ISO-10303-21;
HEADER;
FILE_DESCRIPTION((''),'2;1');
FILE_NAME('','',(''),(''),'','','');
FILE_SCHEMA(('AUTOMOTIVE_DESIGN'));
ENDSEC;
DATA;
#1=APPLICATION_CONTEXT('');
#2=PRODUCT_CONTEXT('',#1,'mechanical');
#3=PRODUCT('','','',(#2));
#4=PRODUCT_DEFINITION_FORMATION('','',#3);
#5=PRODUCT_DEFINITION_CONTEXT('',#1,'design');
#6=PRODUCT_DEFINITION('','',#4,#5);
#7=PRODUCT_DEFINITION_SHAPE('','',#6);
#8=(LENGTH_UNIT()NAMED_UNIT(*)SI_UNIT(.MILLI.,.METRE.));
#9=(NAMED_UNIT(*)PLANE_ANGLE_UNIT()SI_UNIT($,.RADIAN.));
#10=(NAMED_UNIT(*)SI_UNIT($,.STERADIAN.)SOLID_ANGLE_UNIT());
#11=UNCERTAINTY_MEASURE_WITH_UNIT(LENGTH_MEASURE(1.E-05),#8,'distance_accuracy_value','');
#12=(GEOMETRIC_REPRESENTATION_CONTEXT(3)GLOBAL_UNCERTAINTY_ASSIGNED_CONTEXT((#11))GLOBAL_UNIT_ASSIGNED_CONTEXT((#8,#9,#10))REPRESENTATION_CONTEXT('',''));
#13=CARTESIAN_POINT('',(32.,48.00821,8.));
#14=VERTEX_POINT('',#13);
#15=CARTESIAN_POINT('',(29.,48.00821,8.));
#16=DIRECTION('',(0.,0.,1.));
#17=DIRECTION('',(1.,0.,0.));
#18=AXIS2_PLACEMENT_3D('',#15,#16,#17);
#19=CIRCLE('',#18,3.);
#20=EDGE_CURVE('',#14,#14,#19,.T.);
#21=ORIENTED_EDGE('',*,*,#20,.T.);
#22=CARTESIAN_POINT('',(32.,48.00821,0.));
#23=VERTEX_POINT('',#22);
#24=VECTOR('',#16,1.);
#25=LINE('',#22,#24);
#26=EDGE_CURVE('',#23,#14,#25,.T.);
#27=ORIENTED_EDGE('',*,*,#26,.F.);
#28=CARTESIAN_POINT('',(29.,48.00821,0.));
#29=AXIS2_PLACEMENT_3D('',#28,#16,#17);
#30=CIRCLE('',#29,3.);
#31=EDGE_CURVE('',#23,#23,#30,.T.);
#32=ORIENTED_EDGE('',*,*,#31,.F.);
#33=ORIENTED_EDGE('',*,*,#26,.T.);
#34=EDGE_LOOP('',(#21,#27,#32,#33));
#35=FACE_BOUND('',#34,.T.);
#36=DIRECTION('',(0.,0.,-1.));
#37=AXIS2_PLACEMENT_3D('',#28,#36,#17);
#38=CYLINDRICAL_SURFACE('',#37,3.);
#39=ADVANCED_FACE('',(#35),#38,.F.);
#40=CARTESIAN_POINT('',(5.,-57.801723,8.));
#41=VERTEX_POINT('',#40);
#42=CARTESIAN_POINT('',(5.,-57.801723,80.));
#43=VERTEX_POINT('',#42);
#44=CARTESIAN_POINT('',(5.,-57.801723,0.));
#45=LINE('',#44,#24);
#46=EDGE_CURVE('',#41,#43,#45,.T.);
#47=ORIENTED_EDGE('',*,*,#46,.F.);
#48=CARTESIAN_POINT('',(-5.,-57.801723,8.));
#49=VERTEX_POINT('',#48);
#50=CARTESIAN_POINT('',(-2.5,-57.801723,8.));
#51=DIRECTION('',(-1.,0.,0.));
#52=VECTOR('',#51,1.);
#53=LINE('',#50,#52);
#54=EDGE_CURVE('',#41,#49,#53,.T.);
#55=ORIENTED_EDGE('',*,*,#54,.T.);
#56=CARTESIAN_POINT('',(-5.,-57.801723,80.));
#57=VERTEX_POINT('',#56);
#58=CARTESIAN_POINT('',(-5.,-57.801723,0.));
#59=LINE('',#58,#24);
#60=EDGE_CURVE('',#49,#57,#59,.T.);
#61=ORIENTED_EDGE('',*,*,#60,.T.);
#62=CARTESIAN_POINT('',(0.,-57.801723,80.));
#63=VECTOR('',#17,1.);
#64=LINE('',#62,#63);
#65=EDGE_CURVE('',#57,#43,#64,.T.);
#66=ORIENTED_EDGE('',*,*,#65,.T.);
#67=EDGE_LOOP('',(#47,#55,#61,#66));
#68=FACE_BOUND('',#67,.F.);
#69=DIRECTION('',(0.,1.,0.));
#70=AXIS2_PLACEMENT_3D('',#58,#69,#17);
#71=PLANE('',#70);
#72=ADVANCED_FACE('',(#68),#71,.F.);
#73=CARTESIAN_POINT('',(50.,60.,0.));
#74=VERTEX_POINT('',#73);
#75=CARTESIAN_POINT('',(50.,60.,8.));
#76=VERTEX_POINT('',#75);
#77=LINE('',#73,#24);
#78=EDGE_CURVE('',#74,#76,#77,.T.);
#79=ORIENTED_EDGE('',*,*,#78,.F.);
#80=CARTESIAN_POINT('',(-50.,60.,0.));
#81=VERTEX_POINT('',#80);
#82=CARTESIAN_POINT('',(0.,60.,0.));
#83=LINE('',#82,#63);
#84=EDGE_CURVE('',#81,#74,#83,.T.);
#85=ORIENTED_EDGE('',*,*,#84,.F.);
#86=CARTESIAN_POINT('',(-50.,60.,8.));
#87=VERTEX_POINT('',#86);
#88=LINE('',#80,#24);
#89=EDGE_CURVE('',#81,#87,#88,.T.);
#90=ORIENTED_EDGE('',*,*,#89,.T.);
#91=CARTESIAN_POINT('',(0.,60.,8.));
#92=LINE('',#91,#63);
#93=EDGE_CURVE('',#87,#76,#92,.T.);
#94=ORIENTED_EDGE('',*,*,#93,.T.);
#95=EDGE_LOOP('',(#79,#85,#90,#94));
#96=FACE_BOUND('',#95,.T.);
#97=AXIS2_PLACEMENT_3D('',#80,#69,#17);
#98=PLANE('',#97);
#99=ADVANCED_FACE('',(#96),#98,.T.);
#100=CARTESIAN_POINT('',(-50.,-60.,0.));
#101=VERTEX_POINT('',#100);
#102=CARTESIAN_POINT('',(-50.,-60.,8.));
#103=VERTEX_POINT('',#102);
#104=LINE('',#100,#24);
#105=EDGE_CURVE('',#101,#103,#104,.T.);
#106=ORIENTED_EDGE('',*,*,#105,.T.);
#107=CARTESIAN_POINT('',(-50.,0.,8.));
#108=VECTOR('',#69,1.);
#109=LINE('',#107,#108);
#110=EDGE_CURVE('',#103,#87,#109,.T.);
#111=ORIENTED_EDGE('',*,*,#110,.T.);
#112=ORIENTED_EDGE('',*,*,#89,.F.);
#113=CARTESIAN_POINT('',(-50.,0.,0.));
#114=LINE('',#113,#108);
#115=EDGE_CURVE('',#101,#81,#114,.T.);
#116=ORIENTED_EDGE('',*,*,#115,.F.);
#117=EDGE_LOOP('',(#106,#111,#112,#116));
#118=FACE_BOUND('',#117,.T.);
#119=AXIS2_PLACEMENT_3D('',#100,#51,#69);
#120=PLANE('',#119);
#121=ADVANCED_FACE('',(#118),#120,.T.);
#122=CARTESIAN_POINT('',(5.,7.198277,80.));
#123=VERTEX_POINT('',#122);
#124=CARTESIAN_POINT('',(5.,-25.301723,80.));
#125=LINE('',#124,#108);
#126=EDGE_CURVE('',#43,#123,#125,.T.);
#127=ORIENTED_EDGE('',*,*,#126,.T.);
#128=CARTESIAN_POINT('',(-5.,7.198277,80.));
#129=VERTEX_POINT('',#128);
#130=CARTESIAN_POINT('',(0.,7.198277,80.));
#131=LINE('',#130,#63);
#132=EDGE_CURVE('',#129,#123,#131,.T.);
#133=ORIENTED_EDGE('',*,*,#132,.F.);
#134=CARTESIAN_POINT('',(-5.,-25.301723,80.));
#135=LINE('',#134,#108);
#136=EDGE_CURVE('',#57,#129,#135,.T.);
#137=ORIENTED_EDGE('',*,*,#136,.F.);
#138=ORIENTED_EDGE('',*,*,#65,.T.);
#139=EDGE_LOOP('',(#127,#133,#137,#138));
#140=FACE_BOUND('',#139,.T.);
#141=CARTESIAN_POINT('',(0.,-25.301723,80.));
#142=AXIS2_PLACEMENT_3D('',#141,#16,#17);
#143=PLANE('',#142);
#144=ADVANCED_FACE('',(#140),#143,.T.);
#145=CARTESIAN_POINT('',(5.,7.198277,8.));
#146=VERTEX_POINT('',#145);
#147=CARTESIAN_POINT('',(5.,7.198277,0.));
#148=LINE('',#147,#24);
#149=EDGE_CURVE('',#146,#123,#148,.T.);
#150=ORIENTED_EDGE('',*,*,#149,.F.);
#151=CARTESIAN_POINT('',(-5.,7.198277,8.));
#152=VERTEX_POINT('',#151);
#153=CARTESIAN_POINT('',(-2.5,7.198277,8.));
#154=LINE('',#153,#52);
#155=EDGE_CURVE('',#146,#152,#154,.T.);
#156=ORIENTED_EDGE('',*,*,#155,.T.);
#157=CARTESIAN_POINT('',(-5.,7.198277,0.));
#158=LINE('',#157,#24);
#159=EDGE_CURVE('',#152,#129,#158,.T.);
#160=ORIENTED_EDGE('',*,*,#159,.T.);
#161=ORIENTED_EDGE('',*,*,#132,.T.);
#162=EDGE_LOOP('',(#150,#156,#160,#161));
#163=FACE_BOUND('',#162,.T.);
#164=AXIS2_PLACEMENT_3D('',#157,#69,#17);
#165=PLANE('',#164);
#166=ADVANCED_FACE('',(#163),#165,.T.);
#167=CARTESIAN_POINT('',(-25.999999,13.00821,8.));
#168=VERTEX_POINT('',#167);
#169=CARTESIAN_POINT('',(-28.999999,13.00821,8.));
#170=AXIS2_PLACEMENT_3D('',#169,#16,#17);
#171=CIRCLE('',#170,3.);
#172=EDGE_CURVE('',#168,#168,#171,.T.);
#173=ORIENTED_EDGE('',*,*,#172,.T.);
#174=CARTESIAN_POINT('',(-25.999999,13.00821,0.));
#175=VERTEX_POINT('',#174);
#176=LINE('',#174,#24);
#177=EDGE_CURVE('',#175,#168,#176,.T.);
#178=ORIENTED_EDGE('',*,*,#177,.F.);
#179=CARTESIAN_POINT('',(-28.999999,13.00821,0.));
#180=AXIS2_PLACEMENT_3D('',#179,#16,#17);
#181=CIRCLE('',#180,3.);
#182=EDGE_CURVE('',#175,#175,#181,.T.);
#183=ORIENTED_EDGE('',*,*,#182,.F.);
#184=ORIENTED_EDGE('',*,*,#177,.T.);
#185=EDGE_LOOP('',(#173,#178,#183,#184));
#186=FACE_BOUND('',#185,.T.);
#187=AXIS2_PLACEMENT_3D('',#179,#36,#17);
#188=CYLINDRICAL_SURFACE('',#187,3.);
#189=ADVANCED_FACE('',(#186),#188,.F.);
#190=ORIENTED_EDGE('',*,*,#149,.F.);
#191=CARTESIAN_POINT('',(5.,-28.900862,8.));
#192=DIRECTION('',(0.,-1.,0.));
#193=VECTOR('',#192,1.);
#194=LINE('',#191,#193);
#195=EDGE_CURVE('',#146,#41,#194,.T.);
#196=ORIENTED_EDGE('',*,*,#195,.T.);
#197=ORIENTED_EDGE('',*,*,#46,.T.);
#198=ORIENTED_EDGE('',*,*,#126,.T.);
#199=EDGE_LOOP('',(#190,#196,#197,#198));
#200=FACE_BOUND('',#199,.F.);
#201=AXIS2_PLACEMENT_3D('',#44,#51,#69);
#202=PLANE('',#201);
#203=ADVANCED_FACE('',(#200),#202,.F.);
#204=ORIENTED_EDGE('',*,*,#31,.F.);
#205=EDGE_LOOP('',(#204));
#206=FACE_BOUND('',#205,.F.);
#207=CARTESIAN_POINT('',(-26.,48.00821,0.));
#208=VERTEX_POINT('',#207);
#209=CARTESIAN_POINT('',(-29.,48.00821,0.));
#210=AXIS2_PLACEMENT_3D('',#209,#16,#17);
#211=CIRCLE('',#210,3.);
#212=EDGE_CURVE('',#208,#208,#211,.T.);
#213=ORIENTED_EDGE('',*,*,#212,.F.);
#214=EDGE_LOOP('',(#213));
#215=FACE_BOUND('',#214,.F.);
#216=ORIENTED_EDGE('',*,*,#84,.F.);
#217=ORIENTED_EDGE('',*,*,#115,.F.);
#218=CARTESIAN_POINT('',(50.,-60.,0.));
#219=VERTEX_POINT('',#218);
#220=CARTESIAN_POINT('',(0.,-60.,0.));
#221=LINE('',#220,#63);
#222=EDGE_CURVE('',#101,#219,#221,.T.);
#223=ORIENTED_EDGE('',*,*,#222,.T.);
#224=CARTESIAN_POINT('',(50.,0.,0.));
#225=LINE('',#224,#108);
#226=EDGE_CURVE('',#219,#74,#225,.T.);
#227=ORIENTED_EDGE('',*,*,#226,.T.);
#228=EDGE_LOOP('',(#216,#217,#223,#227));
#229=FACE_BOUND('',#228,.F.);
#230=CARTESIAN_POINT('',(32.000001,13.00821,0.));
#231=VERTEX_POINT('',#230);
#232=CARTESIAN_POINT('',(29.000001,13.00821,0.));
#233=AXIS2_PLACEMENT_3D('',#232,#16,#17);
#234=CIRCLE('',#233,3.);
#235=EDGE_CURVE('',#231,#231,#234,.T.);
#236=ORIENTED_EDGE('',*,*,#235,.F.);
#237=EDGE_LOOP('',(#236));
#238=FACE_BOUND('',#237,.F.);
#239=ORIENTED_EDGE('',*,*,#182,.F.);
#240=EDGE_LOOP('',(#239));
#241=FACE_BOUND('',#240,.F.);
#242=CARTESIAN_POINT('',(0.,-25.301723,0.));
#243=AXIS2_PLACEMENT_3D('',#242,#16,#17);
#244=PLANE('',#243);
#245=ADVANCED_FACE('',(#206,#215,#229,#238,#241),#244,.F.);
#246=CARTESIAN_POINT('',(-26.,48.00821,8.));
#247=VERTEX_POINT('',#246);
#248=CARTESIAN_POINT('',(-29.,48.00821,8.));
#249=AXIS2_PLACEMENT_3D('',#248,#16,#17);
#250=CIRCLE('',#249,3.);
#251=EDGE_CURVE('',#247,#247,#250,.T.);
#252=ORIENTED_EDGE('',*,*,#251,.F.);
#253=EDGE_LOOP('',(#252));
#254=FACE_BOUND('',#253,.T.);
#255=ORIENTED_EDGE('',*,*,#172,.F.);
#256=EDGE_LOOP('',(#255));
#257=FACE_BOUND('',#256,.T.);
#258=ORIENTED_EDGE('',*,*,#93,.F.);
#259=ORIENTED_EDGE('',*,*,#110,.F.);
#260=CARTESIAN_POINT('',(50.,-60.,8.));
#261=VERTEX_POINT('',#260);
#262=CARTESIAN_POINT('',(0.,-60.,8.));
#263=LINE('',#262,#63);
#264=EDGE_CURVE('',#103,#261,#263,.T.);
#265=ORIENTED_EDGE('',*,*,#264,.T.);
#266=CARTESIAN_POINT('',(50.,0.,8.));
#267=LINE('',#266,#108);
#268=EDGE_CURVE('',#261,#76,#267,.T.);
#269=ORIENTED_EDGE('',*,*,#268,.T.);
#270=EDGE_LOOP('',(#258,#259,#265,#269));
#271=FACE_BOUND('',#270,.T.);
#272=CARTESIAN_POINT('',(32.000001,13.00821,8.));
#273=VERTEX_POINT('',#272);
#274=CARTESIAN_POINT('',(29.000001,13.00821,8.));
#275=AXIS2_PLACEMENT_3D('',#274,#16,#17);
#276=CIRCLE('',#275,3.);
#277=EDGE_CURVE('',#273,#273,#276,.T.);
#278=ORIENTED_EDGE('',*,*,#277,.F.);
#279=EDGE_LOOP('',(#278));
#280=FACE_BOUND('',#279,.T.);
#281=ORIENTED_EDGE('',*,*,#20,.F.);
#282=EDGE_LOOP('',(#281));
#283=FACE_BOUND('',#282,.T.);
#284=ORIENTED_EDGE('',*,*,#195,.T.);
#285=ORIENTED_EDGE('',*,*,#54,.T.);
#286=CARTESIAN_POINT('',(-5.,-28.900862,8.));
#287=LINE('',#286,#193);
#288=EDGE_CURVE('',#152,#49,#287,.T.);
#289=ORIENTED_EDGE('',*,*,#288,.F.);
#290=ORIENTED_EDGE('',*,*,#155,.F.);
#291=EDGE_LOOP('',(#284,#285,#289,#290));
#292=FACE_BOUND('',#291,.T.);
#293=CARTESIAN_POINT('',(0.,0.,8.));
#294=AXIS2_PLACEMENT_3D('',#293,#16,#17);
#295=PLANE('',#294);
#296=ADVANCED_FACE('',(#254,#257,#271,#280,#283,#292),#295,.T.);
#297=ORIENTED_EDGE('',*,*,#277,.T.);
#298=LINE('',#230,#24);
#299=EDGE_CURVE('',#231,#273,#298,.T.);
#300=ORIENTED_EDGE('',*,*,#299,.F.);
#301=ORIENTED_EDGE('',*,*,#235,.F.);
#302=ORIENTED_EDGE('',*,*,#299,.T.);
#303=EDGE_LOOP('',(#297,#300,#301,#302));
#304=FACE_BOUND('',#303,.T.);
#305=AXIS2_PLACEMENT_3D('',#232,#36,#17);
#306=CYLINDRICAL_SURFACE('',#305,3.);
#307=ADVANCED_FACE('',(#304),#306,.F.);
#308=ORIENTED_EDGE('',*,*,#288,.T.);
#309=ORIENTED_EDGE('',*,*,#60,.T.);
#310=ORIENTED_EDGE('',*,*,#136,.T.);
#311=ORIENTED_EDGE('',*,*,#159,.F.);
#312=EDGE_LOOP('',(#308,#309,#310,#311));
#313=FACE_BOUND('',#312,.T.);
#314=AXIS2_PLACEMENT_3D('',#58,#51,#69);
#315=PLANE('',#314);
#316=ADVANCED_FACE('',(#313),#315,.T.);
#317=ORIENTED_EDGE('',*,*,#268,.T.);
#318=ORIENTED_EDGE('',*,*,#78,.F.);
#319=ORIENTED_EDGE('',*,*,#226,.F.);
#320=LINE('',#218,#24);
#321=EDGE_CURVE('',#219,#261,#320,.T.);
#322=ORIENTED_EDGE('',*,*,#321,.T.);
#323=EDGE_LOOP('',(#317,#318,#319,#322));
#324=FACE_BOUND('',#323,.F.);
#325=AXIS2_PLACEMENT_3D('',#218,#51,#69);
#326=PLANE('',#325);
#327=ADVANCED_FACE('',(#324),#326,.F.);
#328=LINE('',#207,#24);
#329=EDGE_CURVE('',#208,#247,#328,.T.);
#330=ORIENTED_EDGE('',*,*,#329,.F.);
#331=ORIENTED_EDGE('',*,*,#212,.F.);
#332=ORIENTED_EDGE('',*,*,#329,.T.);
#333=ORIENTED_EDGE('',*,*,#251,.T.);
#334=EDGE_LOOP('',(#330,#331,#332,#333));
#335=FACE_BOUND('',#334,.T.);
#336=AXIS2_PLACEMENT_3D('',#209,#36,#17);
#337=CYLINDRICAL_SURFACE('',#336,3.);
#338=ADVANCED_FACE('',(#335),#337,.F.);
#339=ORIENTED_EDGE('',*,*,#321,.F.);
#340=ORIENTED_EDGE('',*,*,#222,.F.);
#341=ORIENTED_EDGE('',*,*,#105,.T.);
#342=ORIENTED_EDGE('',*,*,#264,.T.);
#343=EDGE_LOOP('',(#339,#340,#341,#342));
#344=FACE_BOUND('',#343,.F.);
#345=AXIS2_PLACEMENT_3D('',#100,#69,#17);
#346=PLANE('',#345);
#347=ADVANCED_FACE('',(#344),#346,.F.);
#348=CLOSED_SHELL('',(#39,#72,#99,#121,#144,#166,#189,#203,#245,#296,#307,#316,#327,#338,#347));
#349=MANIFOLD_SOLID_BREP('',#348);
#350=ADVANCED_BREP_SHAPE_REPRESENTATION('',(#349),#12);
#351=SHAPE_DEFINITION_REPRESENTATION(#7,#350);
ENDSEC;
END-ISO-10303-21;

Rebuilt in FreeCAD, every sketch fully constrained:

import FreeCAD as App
import Part
import Sketcher
from FreeCAD import Vector
Q = App.Units.Quantity

doc = App.newDocument("Part")
body = doc.addObject("PartDesign::Body", "Body")

# Sketch on XY plane
sketch1 = doc.addObject("Sketcher::SketchObject", "Sketch")
body.addObject(sketch1)
sketch1.AttachmentSupport = (doc.XY_Plane, [""])
sketch1.MapMode = "FlatFace"
sketch1.addGeometry([
    Part.LineSegment(Vector(-50, 60, 0), Vector(-50, -60, 0)),  # 0
    Part.LineSegment(Vector(-50, -60, 0), Vector(50, -60, 0)),  # 1
    Part.LineSegment(Vector(50, -60, 0), Vector(50, 60, 0)),  # 2
    Part.LineSegment(Vector(50, 60, 0), Vector(-50, 60, 0)),  # 3
    Part.Circle(Vector(-28.999999, 13.00821, 0), Vector(0, 0, 1), 3),  # 4
    Part.Circle(Vector(-29, 48.00821, 0), Vector(0, 0, 1), 3),  # 5
    Part.Circle(Vector(29.000001, 13.00821, 0), Vector(0, 0, 1), 3),  # 6
    Part.Circle(Vector(29, 48.00821, 0), Vector(0, 0, 1), 3),  # 7
], False)
sketch1.addConstraint([
    Sketcher.Constraint("Coincident", 0, 2, 1, 1),
    Sketcher.Constraint("Coincident", 1, 2, 2, 1),
    Sketcher.Constraint("Coincident", 2, 2, 3, 1),
    Sketcher.Constraint("Coincident", 3, 2, 0, 1),
    Sketcher.Constraint("Vertical", 0),
    Sketcher.Constraint("Horizontal", 1),
    Sketcher.Constraint("Vertical", 2),
    Sketcher.Constraint("Horizontal", 3),
    Sketcher.Constraint("Equal", 4, 5),
    Sketcher.Constraint("Equal", 5, 6),
    Sketcher.Constraint("Equal", 6, 7),
    Sketcher.Constraint("Symmetric", 0, 2, 2, 2, -1, 1),
    Sketcher.Constraint("Symmetric", 4, 3, 6, 3, -2),
    Sketcher.Constraint("Symmetric", 5, 3, 7, 3, -2),
    Sketcher.Constraint("Vertical", 4, 3, 5, 3),
    Sketcher.Constraint("Diameter", 4, Q("6 mm")),
    Sketcher.Constraint("DistanceX", 1, 1, 1, 2, Q("100 mm")),
    Sketcher.Constraint("DistanceY", 0, 2, 0, 1, Q("120 mm")),
    Sketcher.Constraint("DistanceX", 4, 3, -1, 1, Q("28.999999 mm")),
    Sketcher.Constraint("DistanceY", 4, 3, 5, 3, Q("35 mm")),
    Sketcher.Constraint("DistanceY", -1, 1, 4, 3, Q("13.00821 mm")),
])
pad1 = doc.addObject("PartDesign::Pad", "Pad")
body.addObject(pad1)
pad1.Profile = sketch1
pad1.Length = 8

# Sketch on XY plane
sketch2 = doc.addObject("Sketcher::SketchObject", "Sketch001")
body.addObject(sketch2)
sketch2.AttachmentSupport = (doc.XY_Plane, [""])
sketch2.MapMode = "FlatFace"
sketch2.addGeometry([
    Part.LineSegment(Vector(-5, 7.198277, 0), Vector(-5, -57.801723, 0)),
    Part.LineSegment(Vector(-5, -57.801723, 0), Vector(5, -57.801723, 0)),
    Part.LineSegment(Vector(5, -57.801723, 0), Vector(5, 7.198277, 0)),
    Part.LineSegment(Vector(5, 7.198277, 0), Vector(-5, 7.198277, 0)),
], False)
sketch2.addConstraint([
    Sketcher.Constraint("Coincident", 0, 2, 1, 1),
    Sketcher.Constraint("Coincident", 1, 2, 2, 1),
    Sketcher.Constraint("Coincident", 2, 2, 3, 1),
    Sketcher.Constraint("Coincident", 3, 2, 0, 1),
    Sketcher.Constraint("Vertical", 0),
    Sketcher.Constraint("Horizontal", 1),
    Sketcher.Constraint("Vertical", 2),
    Sketcher.Constraint("Horizontal", 3),
    Sketcher.Constraint("DistanceX", 1, 1, 1, 2, Q("10 mm")),
    Sketcher.Constraint("DistanceY", 0, 2, 0, 1, Q("65 mm")),
    Sketcher.Constraint("DistanceX", 0, 2, -1, 1, Q("5 mm")),
    Sketcher.Constraint("DistanceY", 0, 2, -1, 1, Q("57.801723 mm")),
])
pad2 = doc.addObject("PartDesign::Pad", "Pad001")
body.addObject(pad2)
pad2.Profile = sketch2
pad2.Length = 80

doc.recompute()
